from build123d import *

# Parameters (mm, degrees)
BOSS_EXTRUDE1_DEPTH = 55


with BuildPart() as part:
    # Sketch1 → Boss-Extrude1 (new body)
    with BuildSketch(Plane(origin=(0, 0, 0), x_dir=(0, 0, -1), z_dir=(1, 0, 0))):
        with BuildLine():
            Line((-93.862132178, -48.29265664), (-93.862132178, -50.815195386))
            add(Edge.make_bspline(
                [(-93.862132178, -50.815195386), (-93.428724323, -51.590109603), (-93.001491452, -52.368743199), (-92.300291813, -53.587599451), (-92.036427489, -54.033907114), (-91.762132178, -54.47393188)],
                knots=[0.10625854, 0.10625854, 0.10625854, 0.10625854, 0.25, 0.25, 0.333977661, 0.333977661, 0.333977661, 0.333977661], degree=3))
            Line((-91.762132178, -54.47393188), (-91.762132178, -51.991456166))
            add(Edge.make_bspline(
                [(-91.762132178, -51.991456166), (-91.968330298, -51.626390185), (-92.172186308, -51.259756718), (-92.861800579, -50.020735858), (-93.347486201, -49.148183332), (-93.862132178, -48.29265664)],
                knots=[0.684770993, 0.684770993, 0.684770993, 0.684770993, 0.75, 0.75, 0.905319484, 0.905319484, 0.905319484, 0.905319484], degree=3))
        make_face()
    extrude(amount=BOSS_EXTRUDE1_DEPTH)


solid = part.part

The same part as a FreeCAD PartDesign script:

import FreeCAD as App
import Part
import Sketcher

doc = App.newDocument("Part")
params = doc.addObject("Spreadsheet::Sheet", "Params")
for row, (alias, value) in enumerate([
    ("pad1_length", "55 mm"),
], start=1):
    params.set(f"A{row}", alias)
    params.set(f"B{row}", "=" + value)
    params.setAlias(f"B{row}", alias)

body = doc.addObject("PartDesign::Body", "Body")

sketch1 = body.newObject("Sketcher::SketchObject", "Sketch")
sketch1.AttachmentSupport = (doc.getObject("YZ_Plane"), [""])
sketch1.MapMode = "FlatFace"
sketch1.addGeometry([
    Part.LineSegment(App.Vector(-48.292657, 93.862132, 0), App.Vector(-50.815195, 93.862132, 0)),
    Part.BSplineCurve([App.Vector(-50.815195, 93.862132, 0), App.Vector(-51.59011, 93.428724, 0), App.Vector(-52.368743, 93.001491, 0), App.Vector(-53.587599, 92.300292, 0), App.Vector(-54.033907, 92.036427, 0), App.Vector(-54.473932, 91.762132, 0)], [4, 2, 4], [0.10625854, 0.25, 0.333977661], False, 3, [1, 1, 1, 1, 1, 1], False),
    Part.LineSegment(App.Vector(-54.473932, 91.762132, 0), App.Vector(-51.991456, 91.762132, 0)),
    Part.BSplineCurve([App.Vector(-51.991456, 91.762132, 0), App.Vector(-51.62639, 91.96833, 0), App.Vector(-51.259757, 92.172186, 0), App.Vector(-50.020736, 92.861801, 0), App.Vector(-49.148183, 93.347486, 0), App.Vector(-48.292657, 93.862132, 0)], [4, 2, 4], [0.684770993, 0.75, 0.905319484], False, 3, [1, 1, 1, 1, 1, 1], False),
], False)
sketch1.addConstraint([
    Sketcher.Constraint("Block", 1),
    Sketcher.Constraint("Block", 3),
    Sketcher.Constraint("Coincident", 0, 2, 1, 1),
    Sketcher.Constraint("Coincident", 1, 2, 2, 1),
    Sketcher.Constraint("Coincident", 2, 2, 3, 1),
    Sketcher.Constraint("Coincident", 3, 2, 0, 1),
])
pad1 = body.newObject("PartDesign::Pad", "Pad")
pad1.Profile = sketch1
pad1.setExpression("Length", "Params.pad1_length")

doc.recompute()
